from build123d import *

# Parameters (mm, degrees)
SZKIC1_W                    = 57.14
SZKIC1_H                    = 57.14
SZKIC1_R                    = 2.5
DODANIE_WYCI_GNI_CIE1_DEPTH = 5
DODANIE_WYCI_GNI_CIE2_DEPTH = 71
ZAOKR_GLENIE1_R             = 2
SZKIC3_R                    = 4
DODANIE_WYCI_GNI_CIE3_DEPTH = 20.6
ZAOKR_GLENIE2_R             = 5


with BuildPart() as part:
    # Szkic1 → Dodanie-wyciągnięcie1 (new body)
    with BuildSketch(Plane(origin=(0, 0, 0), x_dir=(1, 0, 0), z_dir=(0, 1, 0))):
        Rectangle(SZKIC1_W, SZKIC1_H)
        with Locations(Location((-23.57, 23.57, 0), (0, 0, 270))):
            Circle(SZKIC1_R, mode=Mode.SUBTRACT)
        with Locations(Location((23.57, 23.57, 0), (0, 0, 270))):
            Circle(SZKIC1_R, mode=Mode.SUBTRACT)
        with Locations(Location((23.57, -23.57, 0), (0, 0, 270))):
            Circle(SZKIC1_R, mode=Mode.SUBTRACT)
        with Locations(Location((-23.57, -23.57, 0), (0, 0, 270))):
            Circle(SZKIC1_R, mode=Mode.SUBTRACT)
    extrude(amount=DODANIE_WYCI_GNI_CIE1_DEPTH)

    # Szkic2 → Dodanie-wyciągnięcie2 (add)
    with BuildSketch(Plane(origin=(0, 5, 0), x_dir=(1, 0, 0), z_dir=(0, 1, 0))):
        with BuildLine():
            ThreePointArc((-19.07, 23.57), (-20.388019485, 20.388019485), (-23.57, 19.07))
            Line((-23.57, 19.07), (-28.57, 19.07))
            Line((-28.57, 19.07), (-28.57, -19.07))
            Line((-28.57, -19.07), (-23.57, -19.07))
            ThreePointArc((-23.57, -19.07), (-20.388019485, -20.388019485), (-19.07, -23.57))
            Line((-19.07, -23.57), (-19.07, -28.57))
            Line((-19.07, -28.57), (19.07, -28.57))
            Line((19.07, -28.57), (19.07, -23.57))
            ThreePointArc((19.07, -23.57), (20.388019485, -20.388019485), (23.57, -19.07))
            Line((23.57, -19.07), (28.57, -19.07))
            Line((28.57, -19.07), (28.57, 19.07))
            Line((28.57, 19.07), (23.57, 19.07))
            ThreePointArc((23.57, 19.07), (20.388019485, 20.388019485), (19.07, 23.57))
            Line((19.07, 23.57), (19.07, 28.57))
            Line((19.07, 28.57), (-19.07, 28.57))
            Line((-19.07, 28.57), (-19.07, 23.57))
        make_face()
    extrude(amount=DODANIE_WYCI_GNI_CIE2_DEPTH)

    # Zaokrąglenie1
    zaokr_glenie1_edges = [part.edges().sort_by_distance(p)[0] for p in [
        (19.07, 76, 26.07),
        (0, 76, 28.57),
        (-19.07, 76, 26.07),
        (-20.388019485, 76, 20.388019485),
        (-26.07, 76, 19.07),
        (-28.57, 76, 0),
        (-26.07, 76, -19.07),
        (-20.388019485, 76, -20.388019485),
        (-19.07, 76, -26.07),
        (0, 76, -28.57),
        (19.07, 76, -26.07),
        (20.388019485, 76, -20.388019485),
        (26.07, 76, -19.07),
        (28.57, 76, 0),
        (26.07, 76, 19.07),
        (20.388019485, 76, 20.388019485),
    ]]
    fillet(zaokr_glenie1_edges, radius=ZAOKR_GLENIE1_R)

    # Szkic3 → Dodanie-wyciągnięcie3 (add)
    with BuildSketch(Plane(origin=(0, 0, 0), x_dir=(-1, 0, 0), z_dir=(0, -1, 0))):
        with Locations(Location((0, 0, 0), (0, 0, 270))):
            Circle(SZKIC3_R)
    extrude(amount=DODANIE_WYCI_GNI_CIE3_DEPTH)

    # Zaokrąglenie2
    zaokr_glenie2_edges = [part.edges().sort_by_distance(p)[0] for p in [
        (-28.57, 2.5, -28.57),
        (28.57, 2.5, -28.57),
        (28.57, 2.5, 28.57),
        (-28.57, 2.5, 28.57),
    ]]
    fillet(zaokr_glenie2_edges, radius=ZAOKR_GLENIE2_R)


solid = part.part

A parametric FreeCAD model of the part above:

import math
import FreeCAD as App
import Part
import Sketcher
Q = App.Units.Quantity


def edges_at(feature, points):
    """Names of the edges that pass closest to the given points."""
    edges = feature.Shape.Edges
    near = lambda p: min(range(len(edges)), key=lambda i: edges[i].distToShape(Part.Vertex(*p))[0])
    return sorted({f"Edge{near(p) + 1}" for p in points})


def add_polygon(sketch, points):
    """Adds a closed chain of lines whose ends are joined by coincident constraints."""
    first, n = sketch.GeometryCount, len(points)
    for a, b in zip(points, points[1:] + points[:1]):
        sketch.addGeometry(Part.LineSegment(App.Vector(*a, 0), App.Vector(*b, 0)), False)
    for i in range(n):
        sketch.addConstraint(Sketcher.Constraint("Coincident", first + i, 2, first + (i + 1) % n, 1))

doc = App.newDocument("Part")
body = doc.addObject("PartDesign::Body", "Body")

# Sketch on XZ plane
sketch1 = body.newObject("Sketcher::SketchObject", "Sketch")
sketch1.AttachmentSupport = (doc.getObject("XZ_Plane"), [""])
sketch1.MapMode = "FlatFace"
add_polygon(sketch1, [(-28.57, -28.57), (-28.57, 28.57), (28.57, 28.57), (28.57, -28.57)])  # lines 0-3
sketch1.addGeometry(Part.Circle(App.Vector(-23.57, 23.57, 0), App.Vector(0, 0, 1), 2.5), False)  # 4
sketch1.addGeometry(Part.Circle(App.Vector(23.57, 23.57, 0), App.Vector(0, 0, 1), 2.5), False)  # 5
sketch1.addGeometry(Part.Circle(App.Vector(-23.57, -23.57, 0), App.Vector(0, 0, 1), 2.5), False)  # 6
sketch1.addGeometry(Part.Circle(App.Vector(23.57, -23.57, 0), App.Vector(0, 0, 1), 2.5), False)  # 7
sketch1.addConstraint(Sketcher.Constraint("Vertical", 0))
sketch1.addConstraint(Sketcher.Constraint("Horizontal", 1))
sketch1.addConstraint(Sketcher.Constraint("Vertical", 2))
sketch1.addConstraint(Sketcher.Constraint("Horizontal", 3))
sketch1.addConstraint(Sketcher.Constraint("Equal", 4, 5))
sketch1.addConstraint(Sketcher.Constraint("Equal", 5, 6))
sketch1.addConstraint(Sketcher.Constraint("Equal", 6, 7))
sketch1.addConstraint(Sketcher.Constraint("Symmetric", 5, 3, 6, 3, -1, 1))
sketch1.addConstraint(Sketcher.Constraint("Symmetric", 4, 3, 7, 3, -1, 1))
sketch1.addConstraint(Sketcher.Constraint("Symmetric", 0, 2, 2, 2, -1, 1))
sketch1.addConstraint(Sketcher.Constraint("Symmetric", 4, 3, 5, 3, -2))
sketch1.addConstraint(Sketcher.Constraint("Equal", 3, 0))
sketch1.addConstraint(Sketcher.Constraint("Diameter", 4, Q("5 mm")))
sketch1.addConstraint(Sketcher.Constraint("DistanceX", 0, 2, 4, 3, Q("5 mm")))
sketch1.addConstraint(Sketcher.Constraint("DistanceY", 4, 3, 0, 2, Q("5 mm")))
sketch1.addConstraint(Sketcher.Constraint("DistanceX", 1, 1, 1, 2, Q("57.14 mm")))
pad1 = body.newObject("PartDesign::Pad", "Pad")
pad1.Profile = sketch1
pad1.Length = 5
pad1.Reversed = True

# Sketch on XZ plane
sketch2 = body.newObject("Sketcher::SketchObject", "Sketch001")
sketch2.AttachmentSupport = (doc.getObject("XZ_Plane"), [""])
sketch2.MapMode = "FlatFace"
sketch2.AttachmentOffset = App.Placement(App.Vector(0, 0, -5), App.Rotation())
sketch2.addGeometry(Part.ArcOfCircle(Part.Circle(App.Vector(-23.57, -23.57, 0), App.Vector(0, 0, 1), 4.5), math.radians(0), math.radians(90)), False)
sketch2.addGeometry(Part.LineSegment(App.Vector(-23.57, -19.07, 0), App.Vector(-28.57, -19.07, 0)), False)
sketch2.addGeometry(Part.LineSegment(App.Vector(-28.57, -19.07, 0), App.Vector(-28.57, 19.07, 0)), False)
sketch2.addGeometry(Part.LineSegment(App.Vector(-28.57, 19.07, 0), App.Vector(-23.57, 19.07, 0)), False)
sketch2.addGeometry(Part.ArcOfCircle(Part.Circle(App.Vector(-23.57, 23.57, 0), App.Vector(0, 0, 1), 4.5), math.radians(-90), math.radians(0)), False)
sketch2.addGeometry(Part.LineSegment(App.Vector(-19.07, 23.57, 0), App.Vector(-19.07, 28.57, 0)), False)
sketch2.addGeometry(Part.LineSegment(App.Vector(-19.07, 28.57, 0), App.Vector(19.07, 28.57, 0)), False)
sketch2.addGeometry(Part.LineSegment(App.Vector(19.07, 28.57, 0), App.Vector(19.07, 23.57, 0)), False)
sketch2.addGeometry(Part.ArcOfCircle(Part.Circle(App.Vector(23.57, 23.57, 0), App.Vector(0, 0, 1), 4.5), math.radians(-180), math.radians(-90)), False)
sketch2.addGeometry(Part.LineSegment(App.Vector(23.57, 19.07, 0), App.Vector(28.57, 19.07, 0)), False)
sketch2.addGeometry(Part.LineSegment(App.Vector(28.57, 19.07, 0), App.Vector(28.57, -19.07, 0)), False)
sketch2.addGeometry(Part.LineSegment(App.Vector(28.57, -19.07, 0), App.Vector(23.57, -19.07, 0)), False)
sketch2.addGeometry(Part.ArcOfCircle(Part.Circle(App.Vector(23.57, -23.57, 0), App.Vector(0, 0, 1), 4.5), math.radians(90), math.radians(180)), False)
sketch2.addGeometry(Part.LineSegment(App.Vector(19.07, -23.57, 0), App.Vector(19.07, -28.57, 0)), False)
sketch2.addGeometry(Part.LineSegment(App.Vector(19.07, -28.57, 0), App.Vector(-19.07, -28.57, 0)), False)
sketch2.addGeometry(Part.LineSegment(App.Vector(-19.07, -28.57, 0), App.Vector(-19.07, -23.57, 0)), False)
sketch2.addConstraint(Sketcher.Constraint("Tangent", 0, 2, 1, 1))
sketch2.addConstraint(Sketcher.Constraint("Coincident", 1, 2, 2, 1))
sketch2.addConstraint(Sketcher.Constraint("Coincident", 2, 2, 3, 1))
sketch2.addConstraint(Sketcher.Constraint("Tangent", 3, 2, 4, 1))
sketch2.addConstraint(Sketcher.Constraint("Tangent", 4, 2, 5, 1))
sketch2.addConstraint(Sketcher.Constraint("Coincident", 5, 2, 6, 1))
sketch2.addConstraint(Sketcher.Constraint("Coincident", 6, 2, 7, 1))
sketch2.addConstraint(Sketcher.Constraint("Tangent", 7, 2, 8, 1))
sketch2.addConstraint(Sketcher.Constraint("Tangent", 8, 2, 9, 1))
sketch2.addConstraint(Sketcher.Constraint("Coincident", 9, 2, 10, 1))
sketch2.addConstraint(Sketcher.Constraint("Coincident", 10, 2, 11, 1))
sketch2.addConstraint(Sketcher.Constraint("Tangent", 11, 2, 12, 1))
sketch2.addConstraint(Sketcher.Constraint("Tangent", 12, 2, 13, 1))
sketch2.addConstraint(Sketcher.Constraint("Coincident", 13, 2, 14, 1))
sketch2.addConstraint(Sketcher.Constraint("Coincident", 14, 2, 15, 1))
sketch2.addConstraint(Sketcher.Constraint("Tangent", 15, 2, 0, 1))
sketch2.addConstraint(Sketcher.Constraint("Horizontal", 1))
sketch2.addConstraint(Sketcher.Constraint("Vertical", 2))
sketch2.addConstraint(Sketcher.Constraint("Horizontal", 3))
sketch2.addConstraint(Sketcher.Constraint("Vertical", 5))
sketch2.addConstraint(Sketcher.Constraint("Horizontal", 6))
sketch2.addConstraint(Sketcher.Constraint("Vertical", 7))
sketch2.addConstraint(Sketcher.Constraint("Horizontal", 9))
sketch2.addConstraint(Sketcher.Constraint("Vertical", 10))
sketch2.addConstraint(Sketcher.Constraint("Horizontal", 11))
sketch2.addConstraint(Sketcher.Constraint("Vertical", 13))
sketch2.addConstraint(Sketcher.Constraint("Horizontal", 14))
sketch2.addConstraint(Sketcher.Constraint("Vertical", 15))
sketch2.addConstraint(Sketcher.Constraint("Equal", 0, 4))
sketch2.addConstraint(Sketcher.Constraint("Equal", 4, 8))
sketch2.addConstraint(Sketcher.Constraint("Equal", 8, 12))
sketch2.addConstraint(Sketcher.Constraint("Symmetric", 0, 3, 8, 3, -1, 1))
sketch2.addConstraint(Sketcher.Constraint("Symmetric", 4, 3, 12, 3, -1, 1))
sketch2.addConstraint(Sketcher.Constraint("Symmetric", 4, 3, 8, 3, -2))
sketch2.addConstraint(Sketcher.Constraint("Equal", 3, 9))
sketch2.addConstraint(Sketcher.Constraint("Equal", 14, 2))
sketch2.addConstraint(Sketcher.Constraint("Equal", 11, 5))
sketch2.addConstraint(Sketcher.Constraint("Equal", 7, 13))
sketch2.addConstraint(Sketcher.Constraint("Radius", 0, Q("4.5 mm")))
sketch2.addConstraint(Sketcher.Constraint("DistanceX", 1, 2, 1, 1, Q("5 mm")))
sketch2.addConstraint(Sketcher.Constraint("DistanceX", 6, 1, 6, 2, Q("38.14 mm")))
pad2 = body.newObject("PartDesign::Pad", "Pad001")
pad2.Profile = sketch2
pad2.Length = 71
pad2.Reversed = True
doc.recompute()

fillet = body.newObject("PartDesign::Fillet", "Fillet")
fillet.Base = (pad2, edges_at(pad2, [
    (19.07, 76, 26.07),
    (0, 76, 28.57),
    (-19.07, 76, 26.07),
    (-20.388, 76, 20.388),
    (-26.07, 76, 19.07),
    (-28.57, 76, 0),
    (-26.07, 76, -19.07),
    (-20.388, 76, -20.388),
    (-19.07, 76, -26.07),
    (0, 76, -28.57),
    (19.07, 76, -26.07),
    (20.388, 76, -20.388),
    (26.07, 76, -19.07),
    (28.57, 76, 0),
    (26.07, 76, 19.07),
    (20.388, 76, 20.388),
]))
fillet.Radius = 2

# Sketch on XZ plane
sketch3 = body.newObject("Sketcher::SketchObject", "Sketch002")
sketch3.AttachmentSupport = (doc.getObject("XZ_Plane"), [""])
sketch3.MapMode = "FlatFace"
sketch3.addGeometry(Part.Circle(App.Vector(0, 0, 0), App.Vector(0, 0, 1), 4), False)
sketch3.addConstraint(Sketcher.Constraint("Coincident", 0, 3, -1, 1))
sketch3.addConstraint(Sketcher.Constraint("Diameter", 0, Q("8 mm")))
pad3 = body.newObject("PartDesign::Pad", "Pad002")
pad3.Profile = sketch3
pad3.Length = 20.6
doc.recompute()

fillet2 = body.newObject("PartDesign::Fillet", "Fillet001")
fillet2.Base = (pad3, edges_at(pad3, [
    (-28.57, 2.5, -28.57),
    (28.57, 2.5, -28.57),
    (28.57, 2.5, 28.57),
    (-28.57, 2.5, 28.57),
]))
fillet2.Radius = 5

doc.recompute()
